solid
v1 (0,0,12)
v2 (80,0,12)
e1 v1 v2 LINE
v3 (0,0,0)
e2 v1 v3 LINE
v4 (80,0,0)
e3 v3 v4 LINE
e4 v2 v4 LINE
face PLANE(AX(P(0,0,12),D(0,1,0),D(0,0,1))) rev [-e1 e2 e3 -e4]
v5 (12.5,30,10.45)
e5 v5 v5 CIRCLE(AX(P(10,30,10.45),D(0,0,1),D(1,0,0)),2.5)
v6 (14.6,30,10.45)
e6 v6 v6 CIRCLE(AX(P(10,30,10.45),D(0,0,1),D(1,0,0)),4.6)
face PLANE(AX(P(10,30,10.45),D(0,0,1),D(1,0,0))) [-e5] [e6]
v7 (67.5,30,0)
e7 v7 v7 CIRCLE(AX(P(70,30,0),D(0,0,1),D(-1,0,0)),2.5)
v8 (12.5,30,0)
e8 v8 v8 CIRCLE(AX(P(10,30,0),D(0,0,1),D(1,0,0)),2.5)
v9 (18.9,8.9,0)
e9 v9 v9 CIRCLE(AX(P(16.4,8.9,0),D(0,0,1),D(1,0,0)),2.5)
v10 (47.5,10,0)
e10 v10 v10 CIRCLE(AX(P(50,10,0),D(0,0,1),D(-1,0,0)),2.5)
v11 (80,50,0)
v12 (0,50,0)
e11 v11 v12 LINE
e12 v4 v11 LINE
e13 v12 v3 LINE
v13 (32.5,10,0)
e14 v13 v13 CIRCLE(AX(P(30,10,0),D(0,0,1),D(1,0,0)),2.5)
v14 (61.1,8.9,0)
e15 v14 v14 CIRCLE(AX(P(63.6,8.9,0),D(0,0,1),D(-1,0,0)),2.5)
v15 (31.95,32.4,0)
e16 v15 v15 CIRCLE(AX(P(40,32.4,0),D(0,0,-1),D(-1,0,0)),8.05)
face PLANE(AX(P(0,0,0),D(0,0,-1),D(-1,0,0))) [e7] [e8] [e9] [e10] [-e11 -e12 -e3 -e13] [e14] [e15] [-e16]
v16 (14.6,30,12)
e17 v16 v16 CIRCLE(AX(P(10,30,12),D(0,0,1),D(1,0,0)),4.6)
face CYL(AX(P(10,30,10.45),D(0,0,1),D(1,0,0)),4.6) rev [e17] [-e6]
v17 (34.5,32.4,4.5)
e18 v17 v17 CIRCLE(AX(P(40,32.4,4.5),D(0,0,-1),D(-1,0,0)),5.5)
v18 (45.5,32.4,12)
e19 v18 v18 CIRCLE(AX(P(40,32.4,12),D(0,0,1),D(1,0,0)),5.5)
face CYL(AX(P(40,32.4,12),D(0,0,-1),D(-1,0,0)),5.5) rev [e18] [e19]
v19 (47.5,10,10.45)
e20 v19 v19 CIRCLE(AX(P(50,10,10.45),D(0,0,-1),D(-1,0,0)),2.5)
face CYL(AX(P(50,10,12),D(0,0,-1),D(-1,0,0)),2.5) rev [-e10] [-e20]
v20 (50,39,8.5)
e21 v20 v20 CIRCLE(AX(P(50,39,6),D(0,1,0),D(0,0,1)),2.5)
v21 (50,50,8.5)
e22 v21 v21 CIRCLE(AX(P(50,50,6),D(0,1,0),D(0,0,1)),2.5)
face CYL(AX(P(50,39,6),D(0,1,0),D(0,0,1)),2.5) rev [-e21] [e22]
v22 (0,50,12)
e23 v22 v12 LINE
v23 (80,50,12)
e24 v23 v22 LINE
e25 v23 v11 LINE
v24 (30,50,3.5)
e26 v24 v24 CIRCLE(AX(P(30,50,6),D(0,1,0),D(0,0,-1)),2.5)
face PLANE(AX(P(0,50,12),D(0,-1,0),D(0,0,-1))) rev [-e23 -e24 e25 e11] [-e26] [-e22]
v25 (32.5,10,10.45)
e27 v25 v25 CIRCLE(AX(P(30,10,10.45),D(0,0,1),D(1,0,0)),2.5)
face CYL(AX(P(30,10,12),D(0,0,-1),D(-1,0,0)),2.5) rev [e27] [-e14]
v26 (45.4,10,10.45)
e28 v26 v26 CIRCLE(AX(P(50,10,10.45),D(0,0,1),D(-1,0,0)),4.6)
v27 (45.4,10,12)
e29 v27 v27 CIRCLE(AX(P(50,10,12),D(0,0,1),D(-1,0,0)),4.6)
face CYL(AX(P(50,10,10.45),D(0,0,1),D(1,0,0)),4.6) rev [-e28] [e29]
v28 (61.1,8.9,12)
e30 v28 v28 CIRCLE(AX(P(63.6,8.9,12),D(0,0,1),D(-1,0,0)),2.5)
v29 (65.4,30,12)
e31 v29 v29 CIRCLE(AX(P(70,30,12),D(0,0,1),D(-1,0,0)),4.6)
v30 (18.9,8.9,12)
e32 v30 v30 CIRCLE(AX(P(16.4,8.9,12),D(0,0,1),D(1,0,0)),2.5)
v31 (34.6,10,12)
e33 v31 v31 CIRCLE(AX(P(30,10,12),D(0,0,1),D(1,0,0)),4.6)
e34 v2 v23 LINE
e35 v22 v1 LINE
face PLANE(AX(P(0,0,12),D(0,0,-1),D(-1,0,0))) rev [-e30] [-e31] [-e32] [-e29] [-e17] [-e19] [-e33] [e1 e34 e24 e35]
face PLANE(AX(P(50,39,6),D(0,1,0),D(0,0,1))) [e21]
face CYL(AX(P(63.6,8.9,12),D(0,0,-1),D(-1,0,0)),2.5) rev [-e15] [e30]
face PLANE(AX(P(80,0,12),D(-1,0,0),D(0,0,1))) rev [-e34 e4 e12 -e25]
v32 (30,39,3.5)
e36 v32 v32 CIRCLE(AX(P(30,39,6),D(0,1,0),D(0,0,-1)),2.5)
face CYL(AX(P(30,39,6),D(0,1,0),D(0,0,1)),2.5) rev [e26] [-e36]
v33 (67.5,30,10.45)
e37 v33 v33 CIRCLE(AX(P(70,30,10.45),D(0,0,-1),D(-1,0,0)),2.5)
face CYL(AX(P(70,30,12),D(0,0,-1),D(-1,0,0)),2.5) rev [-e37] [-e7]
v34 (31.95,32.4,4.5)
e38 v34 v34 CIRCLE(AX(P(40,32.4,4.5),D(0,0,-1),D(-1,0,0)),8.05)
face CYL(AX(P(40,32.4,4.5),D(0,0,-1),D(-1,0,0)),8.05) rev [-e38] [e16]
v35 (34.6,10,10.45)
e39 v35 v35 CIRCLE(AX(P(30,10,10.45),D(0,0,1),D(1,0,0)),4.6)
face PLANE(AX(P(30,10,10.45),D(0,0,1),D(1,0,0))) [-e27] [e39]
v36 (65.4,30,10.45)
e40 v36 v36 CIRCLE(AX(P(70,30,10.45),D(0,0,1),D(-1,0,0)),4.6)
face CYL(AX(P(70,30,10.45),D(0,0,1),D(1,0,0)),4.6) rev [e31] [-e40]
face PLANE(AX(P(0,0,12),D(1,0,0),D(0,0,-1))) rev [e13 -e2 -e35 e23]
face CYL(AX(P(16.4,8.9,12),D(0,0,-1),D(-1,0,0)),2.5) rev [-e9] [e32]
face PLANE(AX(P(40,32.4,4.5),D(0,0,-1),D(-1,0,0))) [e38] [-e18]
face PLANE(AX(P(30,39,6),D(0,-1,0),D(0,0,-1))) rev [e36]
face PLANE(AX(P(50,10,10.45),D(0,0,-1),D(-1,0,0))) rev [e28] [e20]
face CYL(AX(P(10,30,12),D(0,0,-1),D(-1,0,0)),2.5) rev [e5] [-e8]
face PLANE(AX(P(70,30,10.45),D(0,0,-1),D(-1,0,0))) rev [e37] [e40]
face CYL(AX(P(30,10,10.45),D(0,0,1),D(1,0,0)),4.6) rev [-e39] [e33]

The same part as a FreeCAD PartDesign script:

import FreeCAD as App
import Part
import Sketcher
from FreeCAD import Vector
Q = App.Units.Quantity


def add_polygon(sketch, points):
    """Adds a closed chain of lines whose ends are joined by coincident constraints."""
    first, n = sketch.GeometryCount, len(points)
    for a, b in zip(points, points[1:] + points[:1]):
        sketch.addGeometry(Part.LineSegment(App.Vector(*a, 0), App.Vector(*b, 0)), False)
    for i in range(n):
        sketch.addConstraint(Sketcher.Constraint("Coincident", first + i, 2, first + (i + 1) % n, 1))

doc = App.newDocument("Part")
body = doc.addObject("PartDesign::Body", "Body")

sketch1 = doc.addObject("Sketcher::SketchObject", "Sketch")
body.addObject(sketch1)
sketch1.AttachmentSupport = (doc.XY_Plane, [""])
sketch1.MapMode = "FlatFace"
add_polygon(sketch1, [(0, 50), (0, 0), (80, 0), (80, 50)])
sketch1.addGeometry(Part.Circle(Vector(16.4, 8.9, 0), Vector(0, 0, 1), 2.5), False)
sketch1.addGeometry(Part.Circle(Vector(30, 10, 0), Vector(0, 0, 1), 2.5), False)
sketch1.addGeometry(Part.Circle(Vector(50, 10, 0), Vector(0, 0, 1), 2.5), False)
sketch1.addGeometry(Part.Circle(Vector(63.6, 8.9, 0), Vector(0, 0, 1), 2.5), False)
sketch1.addGeometry(Part.Circle(Vector(10, 30, 0), Vector(0, 0, 1), 2.5), False)
sketch1.addGeometry(Part.Circle(Vector(70, 30, 0), Vector(0, 0, 1), 2.5), False)
sketch1.addGeometry(Part.Circle(Vector(40, 32.4, 0), Vector(0, 0, 1), 5.5), False)
sketch1.addConstraint(Sketcher.Constraint("Vertical", 0))
sketch1.addConstraint(Sketcher.Constraint("Horizontal", 1))
sketch1.addConstraint(Sketcher.Constraint("Vertical", 2))
sketch1.addConstraint(Sketcher.Constraint("Horizontal", 3))
sketch1.addConstraint(Sketcher.Constraint("Coincident", 0, 2, -1, 1))
sketch1.addConstraint(Sketcher.Constraint("Equal", 4, 5))
sketch1.addConstraint(Sketcher.Constraint("Equal", 5, 6))
sketch1.addConstraint(Sketcher.Constraint("Equal", 6, 7))
sketch1.addConstraint(Sketcher.Constraint("Equal", 7, 8))
sketch1.addConstraint(Sketcher.Constraint("Equal", 8, 9))
sketch1.addConstraint(Sketcher.Constraint("Horizontal", 5, 3, 6, 3))
sketch1.addConstraint(Sketcher.Constraint("Horizontal", 4, 3, 7, 3))
sketch1.addConstraint(Sketcher.Constraint("Horizontal", 8, 3, 9, 3))
sketch1.addConstraint(Sketcher.Constraint("Diameter", 4, Q("5 mm")))
sketch1.addConstraint(Sketcher.Constraint("Diameter", 10, Q("11 mm")))
sketch1.addConstraint(Sketcher.Constraint("DistanceX", 1, 1, 1, 2, Q("80 mm")))
sketch1.addConstraint(Sketcher.Constraint("DistanceY", 0, 2, 0, 1, Q("50 mm")))
sketch1.addConstraint(Sketcher.Constraint("DistanceX", -1, 1, 5, 3, Q("30 mm")))
sketch1.addConstraint(Sketcher.Constraint("DistanceY", -1, 1, 5, 3, Q("10 mm")))
sketch1.addConstraint(Sketcher.Constraint("DistanceX", -1, 1, 6, 3, Q("50 mm")))
sketch1.addConstraint(Sketcher.Constraint("DistanceX", -1, 1, 8, 3, Q("10 mm")))
sketch1.addConstraint(Sketcher.Constraint("DistanceY", -1, 1, 8, 3, Q("30 mm")))
sketch1.addConstraint(Sketcher.Constraint("DistanceX", -1, 1, 9, 3, Q("70 mm")))
sketch1.addConstraint(Sketcher.Constraint("DistanceX", -1, 1, 10, 3, Q("40 mm")))
sketch1.addConstraint(Sketcher.Constraint("DistanceX", -1, 1, 4, 3, Q("16.4 mm")))
sketch1.addConstraint(Sketcher.Constraint("DistanceY", -1, 1, 4, 3, Q("8.9 mm")))
sketch1.addConstraint(Sketcher.Constraint("DistanceX", -1, 1, 7, 3, Q("63.6 mm")))
sketch1.addConstraint(Sketcher.Constraint("DistanceY", -1, 1, 10, 3, Q("32.4 mm")))
pad1 = doc.addObject("PartDesign::Pad", "Pad")
body.addObject(pad1)
pad1.Profile = sketch1
pad1.Length = 12

sketch2 = doc.addObject("Sketcher::SketchObject", "Sketch001")
body.addObject(sketch2)
sketch2.AttachmentSupport = (doc.XY_Plane, [""])
sketch2.MapMode = "FlatFace"
sketch2.AttachmentOffset = App.Placement(Vector(0, 0, 12), App.Rotation())
sketch2.addGeometry(Part.Circle(Vector(10, 30, 0), Vector(0, 0, 1), 4.6), False)
sketch2.addGeometry(Part.Circle(Vector(70, 30, 0), Vector(0, 0, 1), 4.6), False)
sketch2.addGeometry(Part.Circle(Vector(30, 10, 0), Vector(0, 0, 1), 4.6), False)
sketch2.addGeometry(Part.Circle(Vector(50, 10, 0), Vector(0, 0, 1), 4.6), False)
sketch2.addConstraint(Sketcher.Constraint("Equal", 0, 1))
sketch2.addConstraint(Sketcher.Constraint("Equal", 1, 2))
sketch2.addConstraint(Sketcher.Constraint("Equal", 2, 3))
sketch2.addConstraint(Sketcher.Constraint("Horizontal", 0, 3, 1, 3))
sketch2.addConstraint(Sketcher.Constraint("Horizontal", 2, 3, 3, 3))
sketch2.addConstraint(Sketcher.Constraint("Diameter", 0, Q("9.2 mm")))
sketch2.addConstraint(Sketcher.Constraint("DistanceX", -1, 1, 0, 3, Q("10 mm")))
sketch2.addConstraint(Sketcher.Constraint("DistanceY", -1, 1, 0, 3, Q("30 mm")))
sketch2.addConstraint(Sketcher.Constraint("DistanceX", -1, 1, 1, 3, Q("70 mm")))
sketch2.addConstraint(Sketcher.Constraint("DistanceX", -1, 1, 2, 3, Q("30 mm")))
sketch2.addConstraint(Sketcher.Constraint("DistanceY", -1, 1, 2, 3, Q("10 mm")))
sketch2.addConstraint(Sketcher.Constraint("DistanceX", -1, 1, 3, 3, Q("50 mm")))
pocket1 = doc.addObject("PartDesign::Pocket", "Pocket")
body.addObject(pocket1)
pocket1.Profile = sketch2
pocket1.Length = 1.55

sketch3 = doc.addObject("Sketcher::SketchObject", "Sketch002")
body.addObject(sketch3)
sketch3.AttachmentSupport = (doc.XY_Plane, [""])
sketch3.MapMode = "FlatFace"
sketch3.addGeometry(Part.Circle(Vector(40, 32, 0), Vector(0, 0, 1), 8), False)
sketch3.addConstraint(Sketcher.Constraint("Diameter", 0, Q("16.1 mm")))
sketch3.addConstraint(Sketcher.Constraint("DistanceX", -1, 1, 0, 3, Q("40 mm")))
sketch3.addConstraint(Sketcher.Constraint("DistanceY", -1, 1, 0, 3, Q("32.4 mm")))
pocket2 = doc.addObject("PartDesign::Pocket", "Pocket001")
body.addObject(pocket2)
pocket2.Profile = sketch3
pocket2.Length = 4.5
pocket2.Reversed = True

sketch4 = doc.addObject("Sketcher::SketchObject", "Sketch003")
body.addObject(sketch4)
sketch4.AttachmentSupport = (doc.XZ_Plane, [""])
sketch4.MapMode = "FlatFace"
sketch4.AttachmentOffset = App.Placement(Vector(0, 0, -50), App.Rotation())
sketch4.addGeometry(Part.Circle(Vector(50, 6, 0), Vector(0, 0, 1), 2.5), False)
sketch4.addGeometry(Part.Circle(Vector(30, 6, 0), Vector(0, 0, 1), 2.5), False)
sketch4.addConstraint(Sketcher.Constraint("Equal", 0, 1))
sketch4.addConstraint(Sketcher.Constraint("Horizontal", 0, 3, 1, 3))
sketch4.addConstraint(Sketcher.Constraint("Diameter", 0, Q("5 mm")))
sketch4.addConstraint(Sketcher.Constraint("DistanceX", -1, 1, 0, 3, Q("50 mm")))
sketch4.addConstraint(Sketcher.Constraint("DistanceY", -1, 1, 0, 3, Q("6 mm")))
sketch4.addConstraint(Sketcher.Constraint("DistanceX", -1, 1, 1, 3, Q("30 mm")))
pocket3 = doc.addObject("PartDesign::Pocket", "Pocket002")
body.addObject(pocket3)
pocket3.Profile = sketch4
pocket3.Length = 11
pocket3.Reversed = True

doc.recompute()
